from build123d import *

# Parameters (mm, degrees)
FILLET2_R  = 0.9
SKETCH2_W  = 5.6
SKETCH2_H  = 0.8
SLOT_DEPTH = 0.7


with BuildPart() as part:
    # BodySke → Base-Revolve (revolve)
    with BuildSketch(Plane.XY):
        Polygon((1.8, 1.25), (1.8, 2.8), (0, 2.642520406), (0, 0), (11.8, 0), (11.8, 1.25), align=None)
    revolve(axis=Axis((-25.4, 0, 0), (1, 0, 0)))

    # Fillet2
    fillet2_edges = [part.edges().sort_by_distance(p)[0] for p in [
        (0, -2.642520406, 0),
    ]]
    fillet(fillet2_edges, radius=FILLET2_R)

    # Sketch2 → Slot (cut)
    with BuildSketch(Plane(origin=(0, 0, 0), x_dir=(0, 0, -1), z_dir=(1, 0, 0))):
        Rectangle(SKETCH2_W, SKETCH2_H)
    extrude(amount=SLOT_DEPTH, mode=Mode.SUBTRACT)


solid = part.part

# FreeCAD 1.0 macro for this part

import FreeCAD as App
import Part
import Sketcher
Q = App.Units.Quantity


def edges_at(feature, points):
    """Names of the edges that pass closest to the given points."""
    edges = feature.Shape.Edges
    near = lambda p: min(range(len(edges)), key=lambda i: edges[i].distToShape(Part.Vertex(*p))[0])
    return sorted({f"Edge{near(p) + 1}" for p in points})

doc = App.newDocument("Part")
body = doc.addObject("PartDesign::Body", "Body")

sketch1 = body.newObject("Sketcher::SketchObject", "Sketch")
sketch1.AttachmentSupport = (doc.getObject("XY_Plane"), [""])
sketch1.MapMode = "FlatFace"
sketch1.addGeometry(Part.LineSegment(App.Vector(1.8, 1.2, 0), App.Vector(1.8, 2.8, 0)), False)
sketch1.addGeometry(Part.LineSegment(App.Vector(1.8, 2.8, 0), App.Vector(0, 2.6, 0)), False)
sketch1.addGeometry(Part.LineSegment(App.Vector(0, 2.6, 0), App.Vector(0, 0, 0)), False)
sketch1.addGeometry(Part.LineSegment(App.Vector(0, 0, 0), App.Vector(11.8, 0, 0)), False)
sketch1.addGeometry(Part.LineSegment(App.Vector(11.8, 0, 0), App.Vector(11.8, 1.2, 0)), False)
sketch1.addGeometry(Part.LineSegment(App.Vector(11.8, 1.2, 0), App.Vector(1.8, 1.2, 0)), False)
sketch1.addConstraint(Sketcher.Constraint("Coincident", 0, 2, 1, 1))
sketch1.addConstraint(Sketcher.Constraint("Coincident", 1, 2, 2, 1))
sketch1.addConstraint(Sketcher.Constraint("Coincident", 2, 2, 3, 1))
sketch1.addConstraint(Sketcher.Constraint("Coincident", 3, 2, 4, 1))
sketch1.addConstraint(Sketcher.Constraint("Coincident", 4, 2, 5, 1))
sketch1.addConstraint(Sketcher.Constraint("Coincident", 5, 2, 0, 1))
sketch1.addConstraint(Sketcher.Constraint("Vertical", 0))
sketch1.addConstraint(Sketcher.Constraint("Vertical", 2))
sketch1.addConstraint(Sketcher.Constraint("Horizontal", 3))
sketch1.addConstraint(Sketcher.Constraint("Vertical", 4))
sketch1.addConstraint(Sketcher.Constraint("Horizontal", 5))
sketch1.addConstraint(Sketcher.Constraint("Coincident", 2, 2, -1, 1))
sketch1.addConstraint(Sketcher.Constraint("DistanceX", 5, 2, 5, 1, 10.0))
sketch1.addConstraint(Sketcher.Constraint("Angle", 1, Q("-175 deg")))
sketch1.addConstraint(Sketcher.Constraint("DistanceX", 3, 1, 3, 2, 11.8))
sketch1.addConstraint(Sketcher.Constraint("DistanceY", 0, 1, 0, 2, 1.55))
sketch1.addConstraint(Sketcher.Constraint("DistanceY", 4, 1, 4, 2, 1.25))
revolution = body.newObject("PartDesign::Revolution", "Revolution")
revolution.Profile = sketch1
revolution.ReferenceAxis = (sketch1, ["H_Axis"])
revolution.Angle = 360
doc.recompute()

fillet = body.newObject("PartDesign::Fillet", "Fillet")
fillet.Base = (revolution, edges_at(revolution, [(0, -2.643, 0)]))
fillet.Radius = 0.9

sketch2 = body.newObject("Sketcher::SketchObject", "Sketch001")
sketch2.AttachmentSupport = (doc.getObject("YZ_Plane"), [""])
sketch2.MapMode = "FlatFace"
sketch2.addGeometry(Part.LineSegment(App.Vector(0.4, 2.8, 0), App.Vector(-0.4, 2.8, 0)), False)
sketch2.addGeometry(Part.LineSegment(App.Vector(-0.4, 2.8, 0), App.Vector(-0.4, -2.8, 0)), False)
sketch2.addGeometry(Part.LineSegment(App.Vector(-0.4, -2.8, 0), App.Vector(0.4, -2.8, 0)), False)
sketch2.addGeometry(Part.LineSegment(App.Vector(0.4, -2.8, 0), App.Vector(0.4, 2.8, 0)), False)
sketch2.addConstraint(Sketcher.Constraint("Coincident", 0, 2, 1, 1))
sketch2.addConstraint(Sketcher.Constraint("Coincident", 1, 2, 2, 1))
sketch2.addConstraint(Sketcher.Constraint("Coincident", 2, 2, 3, 1))
sketch2.addConstraint(Sketcher.Constraint("Coincident", 3, 2, 0, 1))
sketch2.addConstraint(Sketcher.Constraint("Horizontal", 0))
sketch2.addConstraint(Sketcher.Constraint("Vertical", 1))
sketch2.addConstraint(Sketcher.Constraint("Horizontal", 2))
sketch2.addConstraint(Sketcher.Constraint("Vertical", 3))
sketch2.addConstraint(Sketcher.Constraint("Symmetric", 0, 2, 2, 2, -1, 1))
sketch2.addConstraint(Sketcher.Constraint("DistanceX", 0, 2, 0, 1, 0.8))
sketch2.addConstraint(Sketcher.Constraint("DistanceY", 1, 2, 1, 1, 5.6))
pocket1 = body.newObject("PartDesign::Pocket", "Pocket")
pocket1.Profile = sketch2
pocket1.Length = 0.7
pocket1.Reversed = True

doc.recompute()
